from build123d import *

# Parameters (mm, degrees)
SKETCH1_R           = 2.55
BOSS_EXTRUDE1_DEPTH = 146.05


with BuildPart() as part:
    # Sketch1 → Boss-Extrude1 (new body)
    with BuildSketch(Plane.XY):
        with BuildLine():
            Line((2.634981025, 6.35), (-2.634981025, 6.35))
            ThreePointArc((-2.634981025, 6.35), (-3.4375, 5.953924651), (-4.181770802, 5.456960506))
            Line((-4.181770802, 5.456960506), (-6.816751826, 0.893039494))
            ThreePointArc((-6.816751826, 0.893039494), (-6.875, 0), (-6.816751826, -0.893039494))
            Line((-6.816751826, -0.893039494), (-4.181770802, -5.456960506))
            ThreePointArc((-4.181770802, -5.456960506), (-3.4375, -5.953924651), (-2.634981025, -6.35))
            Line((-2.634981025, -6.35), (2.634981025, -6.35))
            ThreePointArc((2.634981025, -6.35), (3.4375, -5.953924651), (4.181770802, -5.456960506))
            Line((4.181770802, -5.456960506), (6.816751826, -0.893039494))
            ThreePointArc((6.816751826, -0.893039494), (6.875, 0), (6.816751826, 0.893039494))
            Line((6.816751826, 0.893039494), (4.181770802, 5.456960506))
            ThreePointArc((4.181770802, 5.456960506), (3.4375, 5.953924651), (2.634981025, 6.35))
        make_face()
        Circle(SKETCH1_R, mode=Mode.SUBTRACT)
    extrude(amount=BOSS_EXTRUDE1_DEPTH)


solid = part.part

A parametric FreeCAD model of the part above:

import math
import FreeCAD as App
import Part
import Sketcher

V = App.Vector
Q = App.Units.Quantity

doc = App.newDocument("Part")
body = doc.addObject("PartDesign::Body", "Body")

sketch1 = body.newObject("Sketcher::SketchObject", "Sketch")
sketch1.AttachmentSupport = (doc.getObject("XY_Plane"), [""])
sketch1.MapMode = "FlatFace"
sketch1.addGeometry([
    Part.LineSegment(V(2.634981, 6.35, 0), V(-2.634981, 6.35, 0)),
    Part.ArcOfCircle(Part.Circle(V(0, 0, 0), V(0, 0, 1), 6.875), math.radians(112.53638), math.radians(127.46362)),
    Part.LineSegment(V(-4.181771, 5.456961, 0), V(-6.816752, 0.893039, 0)),
    Part.ArcOfCircle(Part.Circle(V(0, 0, 0), V(0, 0, 1), 6.875), math.radians(172.53638), math.radians(187.46362)),
    Part.LineSegment(V(-6.816752, -0.893039, 0), V(-4.181771, -5.456961, 0)),
    Part.ArcOfCircle(Part.Circle(V(0, 0, 0), V(0, 0, 1), 6.875), math.radians(-127.46362), math.radians(-112.53638)),
    Part.LineSegment(V(-2.634981, -6.35, 0), V(2.634981, -6.35, 0)),
    Part.ArcOfCircle(Part.Circle(V(0, 0, 0), V(0, 0, 1), 6.875), math.radians(-67.46362), math.radians(-52.53638)),
    Part.LineSegment(V(4.181771, -5.456961, 0), V(6.816752, -0.893039, 0)),
    Part.ArcOfCircle(Part.Circle(V(0, 0, 0), V(0, 0, 1), 6.875), math.radians(-7.46362), math.radians(7.46362)),
    Part.LineSegment(V(6.816752, 0.893039, 0), V(4.181771, 5.456961, 0)),
    Part.ArcOfCircle(Part.Circle(V(0, 0, 0), V(0, 0, 1), 6.875), math.radians(52.53638), math.radians(67.46362)),
    Part.Circle(V(0, 0, 0), V(0, 0, 1), 2.55),
], False)
sketch1.addConstraint([
    Sketcher.Constraint("Coincident", 0, 2, 1, 1),
    Sketcher.Constraint("Coincident", 1, 2, 2, 1),
    Sketcher.Constraint("Coincident", 2, 2, 3, 1),
    Sketcher.Constraint("Coincident", 3, 2, 4, 1),
    Sketcher.Constraint("Coincident", 4, 2, 5, 1),
    Sketcher.Constraint("Coincident", 5, 2, 6, 1),
    Sketcher.Constraint("Coincident", 6, 2, 7, 1),
    Sketcher.Constraint("Coincident", 7, 2, 8, 1),
    Sketcher.Constraint("Coincident", 8, 2, 9, 1),
    Sketcher.Constraint("Coincident", 9, 2, 10, 1),
    Sketcher.Constraint("Coincident", 10, 2, 11, 1),
    Sketcher.Constraint("Coincident", 11, 2, 0, 1),
    Sketcher.Constraint("Horizontal", 0),
    Sketcher.Constraint("Horizontal", 6),
    Sketcher.Constraint("Coincident", 1, 3, -1, 1),
    Sketcher.Constraint("Coincident", 3, 3, -1, 1),
    Sketcher.Constraint("Coincident", 5, 3, -1, 1),
    Sketcher.Constraint("Coincident", 7, 3, -1, 1),
    Sketcher.Constraint("Coincident", 9, 3, -1, 1),
    Sketcher.Constraint("Coincident", 11, 3, -1, 1),
    Sketcher.Constraint("Coincident", 12, 3, -1, 1),
    Sketcher.Constraint("Equal", 1, 3),
    Sketcher.Constraint("Equal", 3, 5),
    Sketcher.Constraint("Equal", 5, 7),
    Sketcher.Constraint("Equal", 7, 9),
    Sketcher.Constraint("Equal", 9, 11),
    Sketcher.Constraint("Parallel", 2, 8),
    Sketcher.Constraint("Parallel", 4, 10),
    Sketcher.Constraint("Horizontal", 4, 2, 7, 2),
    Sketcher.Constraint("Horizontal", 3, 2, 8, 2),
    Sketcher.Constraint("Horizontal", 2, 2, 9, 2),
    Sketcher.Constraint("Vertical", 2, 2, 3, 2),
    Sketcher.Constraint("Vertical", 0, 2, 5, 2),
    Sketcher.Constraint("Diameter", 12, Q("5.1 mm")),
    Sketcher.Constraint("Angle", 2, Q("-120 deg")),
    Sketcher.Constraint("Radius", 1, Q("6.875 mm")),
    Sketcher.Constraint("DistanceY", -1, 1, 0, 2, Q("6.35 mm")),
    Sketcher.Constraint("DistanceY", 3, 2, 1, 2, Q("6.35 mm")),
])
pad1 = body.newObject("PartDesign::Pad", "Pad")
pad1.Profile = sketch1
pad1.Length = 146.05

doc.recompute()
